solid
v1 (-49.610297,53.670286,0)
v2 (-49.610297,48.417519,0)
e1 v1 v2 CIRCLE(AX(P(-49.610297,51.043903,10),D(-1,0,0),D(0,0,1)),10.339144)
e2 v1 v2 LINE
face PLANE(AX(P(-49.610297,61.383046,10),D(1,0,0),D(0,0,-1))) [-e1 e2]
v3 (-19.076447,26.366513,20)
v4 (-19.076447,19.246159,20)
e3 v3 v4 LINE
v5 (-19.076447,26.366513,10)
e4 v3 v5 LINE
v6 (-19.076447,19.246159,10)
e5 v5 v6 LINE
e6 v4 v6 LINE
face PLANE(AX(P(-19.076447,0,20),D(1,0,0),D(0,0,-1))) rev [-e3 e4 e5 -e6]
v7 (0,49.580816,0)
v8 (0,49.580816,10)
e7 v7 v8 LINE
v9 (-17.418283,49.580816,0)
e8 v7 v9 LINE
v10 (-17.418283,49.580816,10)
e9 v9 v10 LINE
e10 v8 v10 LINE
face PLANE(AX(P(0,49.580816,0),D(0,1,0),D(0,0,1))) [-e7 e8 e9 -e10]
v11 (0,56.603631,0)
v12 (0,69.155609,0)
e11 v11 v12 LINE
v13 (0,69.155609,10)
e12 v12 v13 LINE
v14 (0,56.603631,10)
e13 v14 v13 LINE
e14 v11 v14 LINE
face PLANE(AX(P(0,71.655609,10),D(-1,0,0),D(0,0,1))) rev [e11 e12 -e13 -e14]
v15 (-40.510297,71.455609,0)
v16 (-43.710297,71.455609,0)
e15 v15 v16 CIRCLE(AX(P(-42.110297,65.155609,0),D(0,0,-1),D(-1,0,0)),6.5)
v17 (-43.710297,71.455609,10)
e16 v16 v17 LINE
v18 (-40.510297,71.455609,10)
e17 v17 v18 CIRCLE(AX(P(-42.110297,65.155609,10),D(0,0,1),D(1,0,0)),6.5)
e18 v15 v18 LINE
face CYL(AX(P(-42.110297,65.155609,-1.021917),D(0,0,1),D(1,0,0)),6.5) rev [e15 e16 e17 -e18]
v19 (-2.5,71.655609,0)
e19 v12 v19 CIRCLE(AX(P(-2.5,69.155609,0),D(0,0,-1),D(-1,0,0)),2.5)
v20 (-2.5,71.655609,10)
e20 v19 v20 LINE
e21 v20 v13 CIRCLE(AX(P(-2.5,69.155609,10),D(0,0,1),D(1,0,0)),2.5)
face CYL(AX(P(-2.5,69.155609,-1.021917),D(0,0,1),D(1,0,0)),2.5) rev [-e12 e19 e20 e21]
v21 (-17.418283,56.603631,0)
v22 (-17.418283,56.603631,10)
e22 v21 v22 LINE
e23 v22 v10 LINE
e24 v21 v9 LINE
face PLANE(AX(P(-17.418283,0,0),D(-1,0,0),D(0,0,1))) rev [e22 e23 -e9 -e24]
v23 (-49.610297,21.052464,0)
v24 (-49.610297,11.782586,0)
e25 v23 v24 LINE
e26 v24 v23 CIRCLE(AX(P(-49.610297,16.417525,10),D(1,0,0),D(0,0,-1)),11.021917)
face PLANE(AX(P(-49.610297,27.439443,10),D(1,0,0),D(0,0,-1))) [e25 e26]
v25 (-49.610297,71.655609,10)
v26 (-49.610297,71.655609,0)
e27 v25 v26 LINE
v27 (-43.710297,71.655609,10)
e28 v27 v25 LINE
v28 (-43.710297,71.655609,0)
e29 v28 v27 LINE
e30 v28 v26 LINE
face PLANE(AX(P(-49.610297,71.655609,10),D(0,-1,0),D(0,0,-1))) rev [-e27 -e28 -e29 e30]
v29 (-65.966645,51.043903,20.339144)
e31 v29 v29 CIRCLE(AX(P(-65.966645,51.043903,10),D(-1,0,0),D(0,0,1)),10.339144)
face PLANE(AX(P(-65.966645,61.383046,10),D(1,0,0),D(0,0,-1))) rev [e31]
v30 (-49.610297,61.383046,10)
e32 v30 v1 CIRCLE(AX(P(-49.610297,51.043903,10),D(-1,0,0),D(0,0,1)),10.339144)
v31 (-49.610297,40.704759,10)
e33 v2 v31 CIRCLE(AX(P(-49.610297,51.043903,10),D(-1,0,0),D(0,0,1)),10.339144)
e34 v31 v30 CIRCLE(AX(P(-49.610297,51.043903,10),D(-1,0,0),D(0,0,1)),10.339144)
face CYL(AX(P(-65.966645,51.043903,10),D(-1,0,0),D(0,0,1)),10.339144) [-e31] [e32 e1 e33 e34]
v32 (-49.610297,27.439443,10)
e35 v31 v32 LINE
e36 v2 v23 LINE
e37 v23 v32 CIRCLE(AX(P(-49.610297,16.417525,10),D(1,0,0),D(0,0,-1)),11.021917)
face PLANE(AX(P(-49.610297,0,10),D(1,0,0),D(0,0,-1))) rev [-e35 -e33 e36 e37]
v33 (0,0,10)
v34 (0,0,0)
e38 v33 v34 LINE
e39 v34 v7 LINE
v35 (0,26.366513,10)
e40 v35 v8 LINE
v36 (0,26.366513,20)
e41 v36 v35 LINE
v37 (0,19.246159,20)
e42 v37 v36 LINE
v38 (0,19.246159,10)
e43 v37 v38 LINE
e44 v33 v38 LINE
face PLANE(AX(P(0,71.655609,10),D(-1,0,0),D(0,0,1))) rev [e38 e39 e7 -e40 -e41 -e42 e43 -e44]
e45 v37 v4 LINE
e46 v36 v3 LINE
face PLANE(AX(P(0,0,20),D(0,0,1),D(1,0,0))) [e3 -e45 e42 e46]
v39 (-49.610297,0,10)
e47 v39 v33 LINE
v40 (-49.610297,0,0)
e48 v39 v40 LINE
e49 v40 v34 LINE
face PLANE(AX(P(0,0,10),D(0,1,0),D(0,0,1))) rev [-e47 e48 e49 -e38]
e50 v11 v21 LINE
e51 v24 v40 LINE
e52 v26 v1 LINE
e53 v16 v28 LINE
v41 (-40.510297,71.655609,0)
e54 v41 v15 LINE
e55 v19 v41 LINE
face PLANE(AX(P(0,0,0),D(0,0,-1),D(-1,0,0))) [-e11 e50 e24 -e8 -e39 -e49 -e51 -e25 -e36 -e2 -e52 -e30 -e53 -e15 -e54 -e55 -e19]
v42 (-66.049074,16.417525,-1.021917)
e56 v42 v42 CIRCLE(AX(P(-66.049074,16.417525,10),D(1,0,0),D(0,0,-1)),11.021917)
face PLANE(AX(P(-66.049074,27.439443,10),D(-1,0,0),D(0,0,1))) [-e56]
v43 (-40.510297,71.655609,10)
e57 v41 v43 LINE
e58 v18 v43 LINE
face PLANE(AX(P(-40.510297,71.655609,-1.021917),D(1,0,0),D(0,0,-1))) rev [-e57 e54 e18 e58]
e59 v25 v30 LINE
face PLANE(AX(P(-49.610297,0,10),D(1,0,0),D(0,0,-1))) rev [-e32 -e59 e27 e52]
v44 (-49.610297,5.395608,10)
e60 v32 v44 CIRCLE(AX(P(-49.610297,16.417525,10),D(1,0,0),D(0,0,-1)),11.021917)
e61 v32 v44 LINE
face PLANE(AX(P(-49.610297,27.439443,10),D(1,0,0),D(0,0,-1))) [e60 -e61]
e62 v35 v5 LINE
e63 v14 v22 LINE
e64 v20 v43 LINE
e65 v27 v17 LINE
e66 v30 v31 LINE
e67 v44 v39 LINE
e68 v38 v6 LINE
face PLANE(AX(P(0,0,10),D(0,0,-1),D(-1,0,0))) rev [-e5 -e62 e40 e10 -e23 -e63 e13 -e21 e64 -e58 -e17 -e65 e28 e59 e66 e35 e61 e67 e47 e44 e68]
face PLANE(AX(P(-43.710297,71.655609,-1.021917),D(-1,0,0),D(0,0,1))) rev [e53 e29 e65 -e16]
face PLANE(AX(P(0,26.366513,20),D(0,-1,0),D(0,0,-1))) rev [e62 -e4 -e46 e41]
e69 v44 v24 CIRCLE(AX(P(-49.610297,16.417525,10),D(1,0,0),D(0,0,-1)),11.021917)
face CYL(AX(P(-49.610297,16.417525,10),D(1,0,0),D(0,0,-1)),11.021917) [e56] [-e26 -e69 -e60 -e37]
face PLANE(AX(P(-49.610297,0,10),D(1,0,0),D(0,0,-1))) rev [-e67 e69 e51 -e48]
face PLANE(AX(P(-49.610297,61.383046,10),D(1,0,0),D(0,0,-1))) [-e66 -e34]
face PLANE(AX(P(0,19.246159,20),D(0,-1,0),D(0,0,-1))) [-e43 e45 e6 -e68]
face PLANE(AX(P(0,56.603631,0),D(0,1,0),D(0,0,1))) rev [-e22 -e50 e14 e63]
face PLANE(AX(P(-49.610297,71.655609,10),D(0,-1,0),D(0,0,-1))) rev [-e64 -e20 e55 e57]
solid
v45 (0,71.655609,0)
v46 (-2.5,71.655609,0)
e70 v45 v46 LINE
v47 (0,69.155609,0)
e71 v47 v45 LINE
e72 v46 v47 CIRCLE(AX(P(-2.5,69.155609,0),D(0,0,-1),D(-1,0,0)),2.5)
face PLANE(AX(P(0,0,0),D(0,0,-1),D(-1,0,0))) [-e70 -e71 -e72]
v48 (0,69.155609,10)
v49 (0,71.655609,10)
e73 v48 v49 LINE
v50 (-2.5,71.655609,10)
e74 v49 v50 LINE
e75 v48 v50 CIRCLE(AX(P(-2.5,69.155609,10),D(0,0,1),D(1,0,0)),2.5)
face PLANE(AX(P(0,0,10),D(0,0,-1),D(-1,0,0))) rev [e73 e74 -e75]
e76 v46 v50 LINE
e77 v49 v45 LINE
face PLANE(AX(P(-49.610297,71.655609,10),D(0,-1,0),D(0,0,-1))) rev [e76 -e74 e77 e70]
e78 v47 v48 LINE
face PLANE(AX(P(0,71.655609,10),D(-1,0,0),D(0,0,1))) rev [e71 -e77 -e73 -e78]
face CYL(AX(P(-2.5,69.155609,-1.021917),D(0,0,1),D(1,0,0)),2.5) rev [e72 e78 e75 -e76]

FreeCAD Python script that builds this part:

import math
import FreeCAD as App
import Part
import Sketcher

V = App.Vector
Q = App.Units.Quantity


def add_polygon(sketch, points):
    """Adds a closed chain of lines whose ends are joined by coincident constraints."""
    first, n = sketch.GeometryCount, len(points)
    for a, b in zip(points, points[1:] + points[:1]):
        sketch.addGeometry(Part.LineSegment(App.Vector(*a, 0), App.Vector(*b, 0)), False)
    for i in range(n):
        sketch.addConstraint(Sketcher.Constraint("Coincident", first + i, 2, first + (i + 1) % n, 1))

doc = App.newDocument("Part")
params = doc.addObject("Spreadsheet::Sheet", "Params")
for row, (alias, value) in enumerate([
    ("pad1_length", "10 mm"),
    ("revolution_angle", "360 deg"),
    ("revolution2_angle", "360 deg"),
    ("pocket1_length", "10 mm"),
    ("pad2_length", "10 mm"),
    ("sketch6_radius", "6.5 mm"),
    ("sketch6_width", "3.2 mm"),
    ("sketch6_height", "0.2 mm"),
    ("sketch7_diameter", "5 mm"),
], start=1):
    params.set(f"A{row}", alias)
    params.set(f"B{row}", "=" + value)
    params.setAlias(f"B{row}", alias)

body = doc.addObject("PartDesign::Body", "Body")
body.AllowCompound = True

# Sketch on XY plane
sketch1 = body.newObject("Sketcher::SketchObject", "Sketch")
sketch1.AttachmentSupport = (doc.getObject("XY_Plane"), [""])
sketch1.MapMode = "FlatFace"
add_polygon(sketch1, [(-49.610297, 71.655609), (-49.610297, 0), (0, 0), (0, 71.655609)])  # lines 0-3
sketch1.addConstraint([
    Sketcher.Constraint("Vertical", 0),
    Sketcher.Constraint("Horizontal", 1),
    Sketcher.Constraint("Vertical", 2),
    Sketcher.Constraint("Horizontal", 3),
    Sketcher.Constraint("Coincident", 1, 2, -1, 1),
    Sketcher.Constraint("DistanceY", 0, 2, 0, 1, Q("71.655609 mm")),
    Sketcher.Constraint("DistanceX", 1, 1, 1, 2, Q("49.610297 mm")),
])
pad1 = body.newObject("PartDesign::Pad", "Pad")
pad1.Profile = sketch1
pad1.setExpression("Length", "Params.pad1_length")

# Sketch on XY plane
sketch2 = body.newObject("Sketcher::SketchObject", "Sketch001")
sketch2.AttachmentSupport = (doc.getObject("XY_Plane"), [""])
sketch2.MapMode = "FlatFace"
sketch2.AttachmentOffset = App.Placement(V(0, 0, 10), App.Rotation())
add_polygon(sketch2, [(-65.966645, 61.383046), (-65.966645, 51.043903), (-49.610297, 51.043903), (-49.610297, 61.383046)])  # lines 0-3
sketch2.addGeometry(Part.LineSegment(V(-65.966645, 51.043903, 0), V(-49.610297, 51.043903, 0)), True)  # axis
sketch2.addConstraint([
    Sketcher.Constraint("Vertical", 0),
    Sketcher.Constraint("Horizontal", 1),
    Sketcher.Constraint("Vertical", 2),
    Sketcher.Constraint("Horizontal", 3),
    Sketcher.Constraint("Horizontal", 4),
    Sketcher.Constraint("Coincident", 4, 1, 0, 2),
    Sketcher.Constraint("Vertical", 2, 2, 4, 2),
    Sketcher.Constraint("DistanceX", 1, 1, 1, 2, Q("16.356348 mm")),
    Sketcher.Constraint("DistanceY", 0, 2, 0, 1, Q("10.339144 mm")),
    Sketcher.Constraint("DistanceX", 0, 2, -1, 1, Q("65.966645 mm")),
    Sketcher.Constraint("DistanceY", -1, 1, 0, 2, Q("51.043903 mm")),
])
revolution = body.newObject("PartDesign::Revolution", "Revolution")
revolution.Profile = sketch2
revolution.ReferenceAxis = (sketch2, ["Axis0"])
revolution.setExpression("Angle", "Params.revolution_angle")

# Sketch on XY plane
sketch3 = body.newObject("Sketcher::SketchObject", "Sketch002")
sketch3.AttachmentSupport = (doc.getObject("XY_Plane"), [""])
sketch3.MapMode = "FlatFace"
sketch3.AttachmentOffset = App.Placement(V(0, 0, 10), App.Rotation())
add_polygon(sketch3, [(-66.049074, 27.439443), (-66.049074, 16.417525), (-49.610297, 16.417525), (-49.610297, 27.439443)])  # lines 0-3
sketch3.addGeometry(Part.LineSegment(V(-49.610297, 16.417525, 0), V(-66.049074, 16.417525, 0)), True)  # axis
sketch3.addConstraint([
    Sketcher.Constraint("Vertical", 0),
    Sketcher.Constraint("Horizontal", 1),
    Sketcher.Constraint("Vertical", 2),
    Sketcher.Constraint("Horizontal", 3),
    Sketcher.Constraint("Horizontal", 4),
    Sketcher.Constraint("Coincident", 4, 1, 1, 2),
    Sketcher.Constraint("Vertical", 3, 2, 4, 2),
    Sketcher.Constraint("DistanceX", 1, 1, 1, 2, Q("16.438777 mm")),
    Sketcher.Constraint("DistanceY", 0, 2, 0, 1, Q("11.021917 mm")),
    Sketcher.Constraint("DistanceX", 0, 2, -1, 1, Q("66.049074 mm")),
    Sketcher.Constraint("DistanceY", -1, 1, 0, 2, Q("16.417525 mm")),
])
revolution2 = body.newObject("PartDesign::Revolution", "Revolution001")
revolution2.Profile = sketch3
revolution2.ReferenceAxis = (sketch3, ["Axis0"])
revolution2.setExpression("Angle", "Params.revolution2_angle")

# Sketch on XY plane
sketch4 = body.newObject("Sketcher::SketchObject", "Sketch003")
sketch4.AttachmentSupport = (doc.getObject("XY_Plane"), [""])
sketch4.MapMode = "FlatFace"
sketch4.AttachmentOffset = App.Placement(V(0, 0, 10), App.Rotation())
add_polygon(sketch4, [(-17.418283, 56.603631), (-17.418283, 49.580816), (0, 49.580816), (0, 56.603631)])  # lines 0-3
sketch4.addConstraint([
    Sketcher.Constraint("Vertical", 0),
    Sketcher.Constraint("Horizontal", 1),
    Sketcher.Constraint("Vertical", 2),
    Sketcher.Constraint("Horizontal", 3),
    Sketcher.Constraint("PointOnObject", 1, 2, -2),
    Sketcher.Constraint("DistanceX", 1, 1, 1, 2, Q("17.418283 mm")),
    Sketcher.Constraint("DistanceY", 0, 2, 0, 1, Q("7.022815 mm")),
    Sketcher.Constraint("DistanceY", -1, 1, 2, 2, Q("56.603631 mm")),
])
pocket1 = body.newObject("PartDesign::Pocket", "Pocket")
pocket1.Profile = sketch4
pocket1.setExpression("Length", "Params.pocket1_length")

# Sketch on XY plane
sketch5 = body.newObject("Sketcher::SketchObject", "Sketch004")
sketch5.AttachmentSupport = (doc.getObject("XY_Plane"), [""])
sketch5.MapMode = "FlatFace"
sketch5.AttachmentOffset = App.Placement(V(0, 0, 10), App.Rotation())
add_polygon(sketch5, [(-19.076447, 26.366513), (-19.076447, 19.246159), (0, 19.246159), (0, 26.366513)])  # lines 0-3
sketch5.addConstraint([
    Sketcher.Constraint("Vertical", 0),
    Sketcher.Constraint("Horizontal", 1),
    Sketcher.Constraint("Vertical", 2),
    Sketcher.Constraint("Horizontal", 3),
    Sketcher.Constraint("PointOnObject", 1, 2, -2),
    Sketcher.Constraint("DistanceX", 1, 1, 1, 2, Q("19.076447 mm")),
    Sketcher.Constraint("DistanceY", 0, 2, 0, 1, Q("7.120354 mm")),
    Sketcher.Constraint("DistanceY", -1, 1, 0, 2, Q("19.246159 mm")),
])
pad2 = body.newObject("PartDesign::Pad", "Pad001")
pad2.Profile = sketch5
pad2.setExpression("Length", "Params.pad2_length")

# Sketch on XY plane
sketch6 = body.newObject("Sketcher::SketchObject", "Sketch005")
sketch6.AttachmentSupport = (doc.getObject("XY_Plane"), [""])
sketch6.MapMode = "FlatFace"
sketch6.AttachmentOffset = App.Placement(V(0, 0, 10), App.Rotation())
sketch6.addGeometry([
    Part.LineSegment(V(-43.710297, 71.655609, 0), V(-43.710297, 71.455609, 0)),
    Part.ArcOfCircle(Part.Circle(V(-42.110297, 65.155609, 0), V(0, 0, 1), 6.5), math.radians(104.250033), math.radians(435.749967)),
    Part.LineSegment(V(-40.510297, 71.455609, 0), V(-40.510297, 71.655609, 0)),
    Part.LineSegment(V(-40.510297, 71.655609, 0), V(-43.710297, 71.655609, 0)),
], False)
sketch6.addConstraint([
    Sketcher.Constraint("Coincident", 0, 2, 1, 1),
    Sketcher.Constraint("Coincident", 1, 2, 2, 1),
    Sketcher.Constraint("Coincident", 2, 2, 3, 1),
    Sketcher.Constraint("Coincident", 3, 2, 0, 1),
    Sketcher.Constraint("Vertical", 0),
    Sketcher.Constraint("Vertical", 2),
    Sketcher.Constraint("Horizontal", 3),
    Sketcher.Constraint("Horizontal", 0, 2, 1, 2),
    Sketcher.Constraint("Radius", 1, Q("6.5 mm")),
    Sketcher.Constraint("DistanceX", 3, 2, 3, 1, Q("3.2 mm")),
    Sketcher.Constraint("DistanceY", 0, 2, 0, 1, Q("0.2 mm")),
    Sketcher.Constraint("DistanceY", -1, 1, 1, 3, Q("65.155609 mm")),
    Sketcher.Constraint("DistanceX", 1, 3, -1, 1, Q("42.110297 mm")),
])
sketch6.setExpression("Constraints[8]", "Params.sketch6_radius")
sketch6.setExpression("Constraints[9]", "Params.sketch6_width")
sketch6.setExpression("Constraints[10]", "Params.sketch6_height")
pocket2 = body.newObject("PartDesign::Pocket", "Pocket001")
pocket2.Profile = sketch6
pocket2.Type = "ThroughAll"

# Sketch on XY plane
sketch7 = body.newObject("Sketcher::SketchObject", "Sketch006")
sketch7.AttachmentSupport = (doc.getObject("XY_Plane"), [""])
sketch7.MapMode = "FlatFace"
sketch7.AttachmentOffset = App.Placement(V(0, 0, 10), App.Rotation())
sketch7.addGeometry(Part.Circle(V(-2.5, 69.155609, 0), V(0, 0, 1), 2.5), False)
sketch7.addConstraint([
    Sketcher.Constraint("Diameter", 0, Q("5 mm")),
    Sketcher.Constraint("DistanceX", 0, 3, -1, 1, Q("2.5 mm")),
    Sketcher.Constraint("DistanceY", -1, 1, 0, 3, Q("69.155609 mm")),
])
sketch7.setExpression("Constraints[0]", "Params.sketch7_diameter")
pocket3 = body.newObject("PartDesign::Pocket", "Pocket002")
pocket3.Profile = sketch7
pocket3.Type = "ThroughAll"

doc.recompute()
